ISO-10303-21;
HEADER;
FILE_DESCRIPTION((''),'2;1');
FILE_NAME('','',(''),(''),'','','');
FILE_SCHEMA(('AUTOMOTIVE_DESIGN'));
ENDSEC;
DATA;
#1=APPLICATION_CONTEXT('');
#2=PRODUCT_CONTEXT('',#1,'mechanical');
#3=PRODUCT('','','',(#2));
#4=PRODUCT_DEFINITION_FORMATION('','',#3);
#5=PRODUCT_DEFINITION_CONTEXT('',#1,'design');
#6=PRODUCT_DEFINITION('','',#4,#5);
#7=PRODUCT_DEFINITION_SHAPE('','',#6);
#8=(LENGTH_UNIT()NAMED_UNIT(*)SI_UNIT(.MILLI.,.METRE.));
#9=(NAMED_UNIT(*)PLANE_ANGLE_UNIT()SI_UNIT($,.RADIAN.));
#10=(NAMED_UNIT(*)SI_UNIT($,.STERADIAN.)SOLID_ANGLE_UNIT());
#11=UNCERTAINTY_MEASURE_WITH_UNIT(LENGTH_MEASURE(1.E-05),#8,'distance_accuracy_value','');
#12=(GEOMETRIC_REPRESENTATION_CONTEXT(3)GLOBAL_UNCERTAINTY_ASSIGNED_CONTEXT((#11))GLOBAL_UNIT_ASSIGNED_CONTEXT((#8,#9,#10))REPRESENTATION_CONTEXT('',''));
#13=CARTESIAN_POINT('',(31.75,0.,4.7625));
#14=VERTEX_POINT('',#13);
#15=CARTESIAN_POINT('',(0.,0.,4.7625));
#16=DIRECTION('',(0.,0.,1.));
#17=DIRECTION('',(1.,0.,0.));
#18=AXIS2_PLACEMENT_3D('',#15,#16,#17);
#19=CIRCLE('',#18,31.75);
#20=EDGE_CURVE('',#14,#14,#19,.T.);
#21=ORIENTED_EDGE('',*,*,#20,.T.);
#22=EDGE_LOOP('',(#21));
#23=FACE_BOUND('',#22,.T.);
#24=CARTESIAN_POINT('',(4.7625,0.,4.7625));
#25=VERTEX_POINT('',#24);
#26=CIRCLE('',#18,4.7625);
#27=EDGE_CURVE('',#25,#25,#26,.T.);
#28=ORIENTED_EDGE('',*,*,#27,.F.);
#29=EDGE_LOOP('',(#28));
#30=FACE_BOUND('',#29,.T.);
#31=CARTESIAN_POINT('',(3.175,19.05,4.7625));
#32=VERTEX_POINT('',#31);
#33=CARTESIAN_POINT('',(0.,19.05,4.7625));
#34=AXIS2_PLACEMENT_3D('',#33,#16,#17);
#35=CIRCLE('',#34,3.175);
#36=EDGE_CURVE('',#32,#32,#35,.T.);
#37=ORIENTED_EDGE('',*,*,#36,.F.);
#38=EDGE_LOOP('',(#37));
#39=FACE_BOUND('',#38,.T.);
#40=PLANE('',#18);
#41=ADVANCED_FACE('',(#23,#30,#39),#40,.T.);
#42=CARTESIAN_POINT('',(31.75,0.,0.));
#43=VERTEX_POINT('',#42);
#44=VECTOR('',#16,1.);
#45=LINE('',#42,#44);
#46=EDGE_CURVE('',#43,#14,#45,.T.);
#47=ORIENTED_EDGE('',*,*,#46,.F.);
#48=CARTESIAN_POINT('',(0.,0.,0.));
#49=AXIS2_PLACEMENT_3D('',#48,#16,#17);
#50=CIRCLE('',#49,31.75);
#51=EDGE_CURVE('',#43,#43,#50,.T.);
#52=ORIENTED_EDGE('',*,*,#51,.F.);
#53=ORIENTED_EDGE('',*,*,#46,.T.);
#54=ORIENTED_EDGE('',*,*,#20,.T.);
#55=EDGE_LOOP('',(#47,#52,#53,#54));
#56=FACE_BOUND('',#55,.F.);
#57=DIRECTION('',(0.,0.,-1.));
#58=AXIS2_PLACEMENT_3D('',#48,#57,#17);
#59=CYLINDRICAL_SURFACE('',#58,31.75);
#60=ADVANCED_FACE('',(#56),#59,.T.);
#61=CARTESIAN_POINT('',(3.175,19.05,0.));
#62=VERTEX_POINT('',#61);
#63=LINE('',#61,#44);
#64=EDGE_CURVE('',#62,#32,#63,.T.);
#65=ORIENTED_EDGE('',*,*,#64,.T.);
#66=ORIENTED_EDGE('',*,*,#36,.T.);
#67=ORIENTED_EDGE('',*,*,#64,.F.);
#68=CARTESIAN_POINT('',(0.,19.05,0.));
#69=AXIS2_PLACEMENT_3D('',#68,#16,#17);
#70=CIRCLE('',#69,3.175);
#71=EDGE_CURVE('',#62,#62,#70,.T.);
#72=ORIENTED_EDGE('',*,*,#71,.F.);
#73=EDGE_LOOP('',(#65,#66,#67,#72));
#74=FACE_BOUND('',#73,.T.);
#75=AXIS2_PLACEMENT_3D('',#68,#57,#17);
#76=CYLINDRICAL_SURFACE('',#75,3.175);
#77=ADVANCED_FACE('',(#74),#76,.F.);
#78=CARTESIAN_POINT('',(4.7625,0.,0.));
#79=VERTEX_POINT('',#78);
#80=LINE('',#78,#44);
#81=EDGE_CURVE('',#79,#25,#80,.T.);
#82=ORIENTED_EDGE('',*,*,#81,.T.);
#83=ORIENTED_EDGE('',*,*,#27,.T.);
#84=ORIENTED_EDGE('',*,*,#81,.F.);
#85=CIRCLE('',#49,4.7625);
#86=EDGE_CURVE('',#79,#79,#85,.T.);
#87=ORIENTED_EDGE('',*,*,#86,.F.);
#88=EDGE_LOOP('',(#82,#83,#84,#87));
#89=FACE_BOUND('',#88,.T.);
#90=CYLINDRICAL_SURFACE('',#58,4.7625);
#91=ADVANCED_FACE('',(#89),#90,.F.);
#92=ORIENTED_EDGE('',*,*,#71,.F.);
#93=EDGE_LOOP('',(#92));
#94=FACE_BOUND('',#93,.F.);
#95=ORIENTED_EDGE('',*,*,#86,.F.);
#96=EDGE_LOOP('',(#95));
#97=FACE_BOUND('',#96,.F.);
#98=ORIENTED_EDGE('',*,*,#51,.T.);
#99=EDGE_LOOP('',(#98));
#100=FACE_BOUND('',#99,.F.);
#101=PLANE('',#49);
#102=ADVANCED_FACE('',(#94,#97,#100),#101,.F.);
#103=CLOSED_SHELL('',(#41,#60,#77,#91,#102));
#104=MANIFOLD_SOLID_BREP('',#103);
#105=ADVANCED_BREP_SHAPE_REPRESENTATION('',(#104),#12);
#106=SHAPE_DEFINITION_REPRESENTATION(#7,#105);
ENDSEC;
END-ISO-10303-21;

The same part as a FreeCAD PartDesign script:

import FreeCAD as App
import Part
import Sketcher
from FreeCAD import Vector
Q = App.Units.Quantity

doc = App.newDocument("Part")
body = doc.addObject("PartDesign::Body", "Body")

# Sketch on XY plane
sketch1 = body.newObject("Sketcher::SketchObject", "Sketch")
sketch1.AttachmentSupport = (doc.getObject("XY_Plane"), [""])
sketch1.MapMode = "FlatFace"
sketch1.addGeometry([
    Part.Circle(Vector(0, 0, 0), Vector(0, 0, 1), 31.75),
    Part.Circle(Vector(0, 0, 0), Vector(0, 0, 1), 4.7625),
    Part.Circle(Vector(0, 19.05, 0), Vector(0, 0, 1), 3.175),
], False)
sketch1.addConstraint([
    Sketcher.Constraint("Coincident", 0, 3, -1, 1),
    Sketcher.Constraint("Coincident", 1, 3, -1, 1),
    Sketcher.Constraint("PointOnObject", 2, 3, -2),
    Sketcher.Constraint("Diameter", 0, Q("2.5 in")),
    Sketcher.Constraint("Diameter", 2, Q("0.25 in")),
    Sketcher.Constraint("Diameter", 1, Q("0.375 in")),
    Sketcher.Constraint("DistanceY", -1, 1, 2, 3, Q("0.75 in")),
])
pad1 = body.newObject("PartDesign::Pad", "Pad")
pad1.Profile = sketch1
pad1.Length = Q("0.1875 in")

doc.recompute()
